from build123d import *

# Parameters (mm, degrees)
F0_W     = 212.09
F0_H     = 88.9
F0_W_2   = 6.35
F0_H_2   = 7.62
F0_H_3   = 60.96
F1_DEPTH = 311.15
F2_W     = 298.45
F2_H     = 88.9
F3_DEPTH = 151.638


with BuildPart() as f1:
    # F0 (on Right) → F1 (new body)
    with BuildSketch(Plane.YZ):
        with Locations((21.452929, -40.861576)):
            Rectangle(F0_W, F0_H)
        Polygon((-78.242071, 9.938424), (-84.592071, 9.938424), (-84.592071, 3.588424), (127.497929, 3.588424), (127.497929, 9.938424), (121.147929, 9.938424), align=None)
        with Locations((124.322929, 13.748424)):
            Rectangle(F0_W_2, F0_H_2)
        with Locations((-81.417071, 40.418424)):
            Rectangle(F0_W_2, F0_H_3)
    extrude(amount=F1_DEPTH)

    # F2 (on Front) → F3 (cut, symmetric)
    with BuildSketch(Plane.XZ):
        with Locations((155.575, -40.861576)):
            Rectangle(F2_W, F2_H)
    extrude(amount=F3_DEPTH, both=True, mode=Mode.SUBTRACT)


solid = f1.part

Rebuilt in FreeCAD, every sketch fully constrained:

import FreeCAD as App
import Part
import Sketcher

V = App.Vector
Q = App.Units.Quantity

doc = App.newDocument("Part")
body = doc.addObject("PartDesign::Body", "Body")

# Sketch on YZ plane
sketch1 = body.newObject("Sketcher::SketchObject", "Sketch")
sketch1.AttachmentSupport = (doc.getObject("YZ_Plane"), [""])
sketch1.MapMode = "FlatFace"
sketch1.addGeometry([
    Part.LineSegment(V(-85, -85, 0), V(127, -85, 0)),  # 0
    Part.LineSegment(V(127, -85, 0), V(127, 18, 0)),  # 1
    Part.LineSegment(V(127, 18, 0), V(121, 18, 0)),  # 2
    Part.LineSegment(V(121, 18, 0), V(121, 10, 0)),  # 3
    Part.LineSegment(V(121, 10, 0), V(-78, 10, 0)),  # 4
    Part.LineSegment(V(-78, 10, 0), V(-78, 71, 0)),  # 5
    Part.LineSegment(V(-78, 71, 0), V(-85, 71, 0)),  # 6
    Part.LineSegment(V(-85, 71, 0), V(-85, -85, 0)),  # 7
], False)
sketch1.addConstraint([
    Sketcher.Constraint("Coincident", 0, 2, 1, 1),
    Sketcher.Constraint("Coincident", 1, 2, 2, 1),
    Sketcher.Constraint("Coincident", 2, 2, 3, 1),
    Sketcher.Constraint("Coincident", 3, 2, 4, 1),
    Sketcher.Constraint("Coincident", 4, 2, 5, 1),
    Sketcher.Constraint("Coincident", 5, 2, 6, 1),
    Sketcher.Constraint("Coincident", 6, 2, 7, 1),
    Sketcher.Constraint("Coincident", 7, 2, 0, 1),
    Sketcher.Constraint("Horizontal", 0),
    Sketcher.Constraint("Vertical", 1),
    Sketcher.Constraint("Horizontal", 2),
    Sketcher.Constraint("Vertical", 3),
    Sketcher.Constraint("Horizontal", 4),
    Sketcher.Constraint("Vertical", 5),
    Sketcher.Constraint("Horizontal", 6),
    Sketcher.Constraint("Vertical", 7),
    Sketcher.Constraint("Equal", 2, 6),
    Sketcher.Constraint("DistanceY", 3, 2, 3, 1, Q("0.3 in")),
    Sketcher.Constraint("DistanceY", 5, 1, 5, 2, Q("2.4 in")),
    Sketcher.Constraint("DistanceX", 0, 1, 0, 2, Q("8.35 in")),
    Sketcher.Constraint("DistanceX", 2, 2, 2, 1, Q("0.25 in")),
    Sketcher.Constraint("DistanceY", 1, 1, 1, 2, Q("4.05 in")),
    Sketcher.Constraint("DistanceX", -1, 1, 0, 2, Q("127.497929 mm")),
    Sketcher.Constraint("DistanceY", 0, 2, -1, 1, Q("85.311576 mm")),
])
pad1 = body.newObject("PartDesign::Pad", "Pad")
pad1.Profile = sketch1
pad1.Length = Q("12.25 in")

# Sketch on XZ plane
sketch2 = body.newObject("Sketcher::SketchObject", "Sketch001")
sketch2.AttachmentSupport = (doc.getObject("XZ_Plane"), [""])
sketch2.MapMode = "FlatFace"
sketch2.addGeometry([
    Part.LineSegment(V(6, 4, 0), V(6, -85, 0)),
    Part.LineSegment(V(6, -85, 0), V(305, -85, 0)),
    Part.LineSegment(V(305, -85, 0), V(305, 4, 0)),
    Part.LineSegment(V(305, 4, 0), V(6, 4, 0)),
], False)
sketch2.addConstraint([
    Sketcher.Constraint("Coincident", 0, 2, 1, 1),
    Sketcher.Constraint("Coincident", 1, 2, 2, 1),
    Sketcher.Constraint("Coincident", 2, 2, 3, 1),
    Sketcher.Constraint("Coincident", 3, 2, 0, 1),
    Sketcher.Constraint("Vertical", 0),
    Sketcher.Constraint("Horizontal", 1),
    Sketcher.Constraint("Vertical", 2),
    Sketcher.Constraint("Horizontal", 3),
    Sketcher.Constraint("DistanceY", 0, 2, 0, 1, Q("3.5 in")),
    Sketcher.Constraint("DistanceX", -1, 1, 1, 2, Q("12 in")),
    Sketcher.Constraint("DistanceX", 1, 1, 1, 2, Q("11.75 in")),
    Sketcher.Constraint("DistanceY", 0, 2, -1, 1, Q("85.311576 mm")),
])
pocket1 = body.newObject("PartDesign::Pocket", "Pocket")
pocket1.Profile = sketch2
pocket1.Length = Q("11.94 in")
pocket1.Midplane = True

doc.recompute()
